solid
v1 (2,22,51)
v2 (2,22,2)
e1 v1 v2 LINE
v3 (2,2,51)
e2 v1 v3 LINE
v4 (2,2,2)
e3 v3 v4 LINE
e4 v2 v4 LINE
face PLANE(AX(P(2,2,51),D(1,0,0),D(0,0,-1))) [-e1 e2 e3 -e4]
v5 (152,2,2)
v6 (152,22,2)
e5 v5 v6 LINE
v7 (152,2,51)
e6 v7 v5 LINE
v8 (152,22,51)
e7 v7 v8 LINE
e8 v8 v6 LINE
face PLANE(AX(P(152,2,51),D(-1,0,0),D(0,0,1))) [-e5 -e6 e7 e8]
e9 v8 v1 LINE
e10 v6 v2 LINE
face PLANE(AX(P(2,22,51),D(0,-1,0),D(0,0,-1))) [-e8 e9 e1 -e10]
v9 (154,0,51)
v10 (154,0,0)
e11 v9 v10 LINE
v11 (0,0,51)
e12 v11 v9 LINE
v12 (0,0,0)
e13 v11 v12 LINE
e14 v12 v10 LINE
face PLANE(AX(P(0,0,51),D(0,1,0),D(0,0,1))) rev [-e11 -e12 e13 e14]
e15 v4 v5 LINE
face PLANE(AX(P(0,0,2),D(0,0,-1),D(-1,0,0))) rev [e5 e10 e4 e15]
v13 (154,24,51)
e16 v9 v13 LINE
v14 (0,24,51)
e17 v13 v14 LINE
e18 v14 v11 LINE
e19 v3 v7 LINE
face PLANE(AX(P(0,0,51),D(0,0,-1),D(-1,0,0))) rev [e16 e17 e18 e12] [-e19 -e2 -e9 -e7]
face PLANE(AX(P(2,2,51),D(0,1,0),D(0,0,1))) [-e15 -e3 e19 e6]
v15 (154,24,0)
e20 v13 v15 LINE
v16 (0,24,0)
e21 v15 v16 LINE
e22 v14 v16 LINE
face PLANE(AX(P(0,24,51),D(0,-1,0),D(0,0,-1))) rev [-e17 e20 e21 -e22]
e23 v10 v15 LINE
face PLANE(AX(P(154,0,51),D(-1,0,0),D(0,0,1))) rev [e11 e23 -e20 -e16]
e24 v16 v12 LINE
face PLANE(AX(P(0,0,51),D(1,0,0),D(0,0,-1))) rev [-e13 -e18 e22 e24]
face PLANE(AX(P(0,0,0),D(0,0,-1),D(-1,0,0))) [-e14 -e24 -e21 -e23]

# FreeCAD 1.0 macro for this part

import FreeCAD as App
import Part
import Sketcher
from FreeCAD import Vector
Q = App.Units.Quantity


def add_polygon(sketch, points):
    """Adds a closed chain of lines whose ends are joined by coincident constraints."""
    first, n = sketch.GeometryCount, len(points)
    for a, b in zip(points, points[1:] + points[:1]):
        sketch.addGeometry(Part.LineSegment(App.Vector(*a, 0), App.Vector(*b, 0)), False)
    for i in range(n):
        sketch.addConstraint(Sketcher.Constraint("Coincident", first + i, 2, first + (i + 1) % n, 1))

doc = App.newDocument("Part")
body = doc.addObject("PartDesign::Body", "Body")

sketch1 = doc.addObject("Sketcher::SketchObject", "Sketch")
body.addObject(sketch1)
sketch1.AttachmentSupport = (doc.XY_Plane, [""])
sketch1.MapMode = "FlatFace"
add_polygon(sketch1, [(0, 24), (0, 0), (154, 0), (154, 24)])
add_polygon(sketch1, [(152, 2), (2, 2), (2, 22), (152, 22)])
sketch1.addConstraint(Sketcher.Constraint("Vertical", 0))
sketch1.addConstraint(Sketcher.Constraint("Horizontal", 1))
sketch1.addConstraint(Sketcher.Constraint("Vertical", 2))
sketch1.addConstraint(Sketcher.Constraint("Horizontal", 3))
sketch1.addConstraint(Sketcher.Constraint("Horizontal", 4))
sketch1.addConstraint(Sketcher.Constraint("Vertical", 5))
sketch1.addConstraint(Sketcher.Constraint("Horizontal", 6))
sketch1.addConstraint(Sketcher.Constraint("Vertical", 7))
sketch1.addConstraint(Sketcher.Constraint("Coincident", 0, 2, -1, 1))
sketch1.addConstraint(Sketcher.Constraint("DistanceX", 1, 1, 1, 2, Q("154 mm")))
sketch1.addConstraint(Sketcher.Constraint("DistanceX", 4, 2, 4, 1, Q("150 mm")))
sketch1.addConstraint(Sketcher.Constraint("DistanceY", 0, 2, 0, 1, Q("24 mm")))
sketch1.addConstraint(Sketcher.Constraint("DistanceY", 5, 1, 5, 2, Q("20 mm")))
sketch1.addConstraint(Sketcher.Constraint("DistanceX", -1, 1, 4, 2, Q("2 mm")))
sketch1.addConstraint(Sketcher.Constraint("DistanceY", -1, 1, 4, 2, Q("2 mm")))
pad1 = doc.addObject("PartDesign::Pad", "Pad")
body.addObject(pad1)
pad1.Profile = sketch1
pad1.Length = 51

sketch2 = doc.addObject("Sketcher::SketchObject", "Sketch001")
body.addObject(sketch2)
sketch2.AttachmentSupport = (doc.XY_Plane, [""])
sketch2.MapMode = "FlatFace"
add_polygon(sketch2, [(2, 22), (2, 2), (152, 2), (152, 22)])
sketch2.addConstraint(Sketcher.Constraint("Vertical", 0))
sketch2.addConstraint(Sketcher.Constraint("Horizontal", 1))
sketch2.addConstraint(Sketcher.Constraint("Vertical", 2))
sketch2.addConstraint(Sketcher.Constraint("Horizontal", 3))
sketch2.addConstraint(Sketcher.Constraint("DistanceX", 1, 1, 1, 2, Q("150 mm")))
sketch2.addConstraint(Sketcher.Constraint("DistanceY", 0, 2, 0, 1, Q("20 mm")))
sketch2.addConstraint(Sketcher.Constraint("DistanceX", -1, 1, 0, 2, Q("2 mm")))
sketch2.addConstraint(Sketcher.Constraint("DistanceY", -1, 1, 0, 2, Q("2 mm")))
pad2 = doc.addObject("PartDesign::Pad", "Pad001")
body.addObject(pad2)
pad2.Profile = sketch2
pad2.Length = 2

doc.recompute()
